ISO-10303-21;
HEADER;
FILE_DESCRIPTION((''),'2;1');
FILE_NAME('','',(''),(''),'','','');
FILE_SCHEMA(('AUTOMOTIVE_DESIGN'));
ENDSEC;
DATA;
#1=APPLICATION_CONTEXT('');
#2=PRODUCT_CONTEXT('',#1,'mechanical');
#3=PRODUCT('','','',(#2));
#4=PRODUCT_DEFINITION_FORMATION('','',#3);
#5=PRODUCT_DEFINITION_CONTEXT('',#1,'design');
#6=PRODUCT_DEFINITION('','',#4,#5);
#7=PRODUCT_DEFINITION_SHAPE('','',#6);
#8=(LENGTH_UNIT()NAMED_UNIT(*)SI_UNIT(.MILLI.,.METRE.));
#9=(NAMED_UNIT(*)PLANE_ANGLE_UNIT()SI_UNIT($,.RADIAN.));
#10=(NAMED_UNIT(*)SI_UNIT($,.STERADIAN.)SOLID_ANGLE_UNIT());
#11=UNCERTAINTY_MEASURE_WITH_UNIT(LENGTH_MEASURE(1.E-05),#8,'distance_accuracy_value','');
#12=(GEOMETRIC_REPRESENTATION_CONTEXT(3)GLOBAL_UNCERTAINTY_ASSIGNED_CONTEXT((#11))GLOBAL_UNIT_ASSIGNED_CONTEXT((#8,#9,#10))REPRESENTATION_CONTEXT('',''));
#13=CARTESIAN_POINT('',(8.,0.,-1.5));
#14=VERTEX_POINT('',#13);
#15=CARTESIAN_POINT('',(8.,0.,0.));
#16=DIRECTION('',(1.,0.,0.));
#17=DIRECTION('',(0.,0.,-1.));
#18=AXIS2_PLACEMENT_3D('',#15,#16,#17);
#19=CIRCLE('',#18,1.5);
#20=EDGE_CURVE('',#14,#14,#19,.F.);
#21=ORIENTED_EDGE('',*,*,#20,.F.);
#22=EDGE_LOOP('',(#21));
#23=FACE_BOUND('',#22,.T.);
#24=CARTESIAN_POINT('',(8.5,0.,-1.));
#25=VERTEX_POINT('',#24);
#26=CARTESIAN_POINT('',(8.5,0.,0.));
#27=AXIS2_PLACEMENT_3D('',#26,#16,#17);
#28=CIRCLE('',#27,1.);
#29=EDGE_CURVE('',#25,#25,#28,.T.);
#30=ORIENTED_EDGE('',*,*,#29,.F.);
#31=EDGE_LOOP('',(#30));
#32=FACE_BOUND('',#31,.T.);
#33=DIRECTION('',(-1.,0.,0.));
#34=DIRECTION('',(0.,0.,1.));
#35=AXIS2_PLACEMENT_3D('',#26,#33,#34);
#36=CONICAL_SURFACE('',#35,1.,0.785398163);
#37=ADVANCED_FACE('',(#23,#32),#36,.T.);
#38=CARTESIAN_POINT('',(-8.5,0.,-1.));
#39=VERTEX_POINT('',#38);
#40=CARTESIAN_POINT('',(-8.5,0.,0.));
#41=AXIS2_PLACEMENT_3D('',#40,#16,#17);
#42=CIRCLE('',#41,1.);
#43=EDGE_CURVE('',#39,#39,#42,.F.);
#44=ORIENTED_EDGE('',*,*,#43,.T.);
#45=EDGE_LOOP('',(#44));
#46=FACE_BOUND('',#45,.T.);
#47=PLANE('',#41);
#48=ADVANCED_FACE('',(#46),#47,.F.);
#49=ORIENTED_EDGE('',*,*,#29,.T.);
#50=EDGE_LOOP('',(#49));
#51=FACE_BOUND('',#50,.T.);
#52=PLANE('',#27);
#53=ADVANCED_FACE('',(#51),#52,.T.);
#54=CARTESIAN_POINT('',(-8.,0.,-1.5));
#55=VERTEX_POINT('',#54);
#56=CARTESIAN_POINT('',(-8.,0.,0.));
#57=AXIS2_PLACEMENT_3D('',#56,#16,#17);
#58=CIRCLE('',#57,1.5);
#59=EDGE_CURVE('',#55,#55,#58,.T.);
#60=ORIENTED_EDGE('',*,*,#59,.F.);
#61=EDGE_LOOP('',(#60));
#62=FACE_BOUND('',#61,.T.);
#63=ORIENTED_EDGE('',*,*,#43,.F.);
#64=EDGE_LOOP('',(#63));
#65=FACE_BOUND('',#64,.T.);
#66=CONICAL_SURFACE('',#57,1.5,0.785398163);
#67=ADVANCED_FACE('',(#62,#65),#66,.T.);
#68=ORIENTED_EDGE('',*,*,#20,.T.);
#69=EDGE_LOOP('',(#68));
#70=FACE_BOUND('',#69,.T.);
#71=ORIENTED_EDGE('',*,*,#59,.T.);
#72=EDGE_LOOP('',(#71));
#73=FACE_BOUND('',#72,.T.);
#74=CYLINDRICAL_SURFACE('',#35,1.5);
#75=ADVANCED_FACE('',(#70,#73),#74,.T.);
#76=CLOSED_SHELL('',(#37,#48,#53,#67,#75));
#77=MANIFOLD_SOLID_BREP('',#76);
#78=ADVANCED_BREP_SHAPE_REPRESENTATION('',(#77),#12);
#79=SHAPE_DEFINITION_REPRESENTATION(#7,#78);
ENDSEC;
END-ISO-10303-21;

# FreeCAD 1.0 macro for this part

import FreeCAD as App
import Part
import Sketcher

V = App.Vector


def edges_at(feature, points):
    """Names of the edges that pass closest to the given points."""
    edges = feature.Shape.Edges
    near = lambda p: min(range(len(edges)), key=lambda i: edges[i].distToShape(Part.Vertex(*p))[0])
    return sorted({f"Edge{near(p) + 1}" for p in points})

doc = App.newDocument("Part")
params = doc.addObject("Spreadsheet::Sheet", "Params")
for row, (alias, value) in enumerate([
    ("sketch1_diameter", "3 mm"),
    ("pad1_length", "17 mm"),
    ("chamfer_size", "0.5 mm"),
], start=1):
    params.set(f"A{row}", alias)
    params.set(f"B{row}", "=" + value)
    params.setAlias(f"B{row}", alias)

body = doc.addObject("PartDesign::Body", "Body")

sketch1 = body.newObject("Sketcher::SketchObject", "Sketch")
sketch1.AttachmentSupport = (doc.getObject("YZ_Plane"), [""])
sketch1.MapMode = "FlatFace"
sketch1.addGeometry(Part.Circle(V(0, 0, 0), V(0, 0, 1), 1.5), False)
sketch1.addConstraint(Sketcher.Constraint("Coincident", 0, 3, -1, 1))
sketch1.addConstraint(Sketcher.Constraint("Diameter", 0, 3.0))
sketch1.setExpression("Constraints[1]", "Params.sketch1_diameter")
pad1 = body.newObject("PartDesign::Pad", "Pad")
pad1.Profile = sketch1
pad1.setExpression("Length", "Params.pad1_length")
pad1.Midplane = True
doc.recompute()

chamfer = body.newObject("PartDesign::Chamfer", "Chamfer")
chamfer.Base = (pad1, edges_at(pad1, [(-8.5, 0, 1.5), (8.5, 0, 1.5)]))
chamfer.setExpression("Size", "Params.chamfer_size")

doc.recompute()
